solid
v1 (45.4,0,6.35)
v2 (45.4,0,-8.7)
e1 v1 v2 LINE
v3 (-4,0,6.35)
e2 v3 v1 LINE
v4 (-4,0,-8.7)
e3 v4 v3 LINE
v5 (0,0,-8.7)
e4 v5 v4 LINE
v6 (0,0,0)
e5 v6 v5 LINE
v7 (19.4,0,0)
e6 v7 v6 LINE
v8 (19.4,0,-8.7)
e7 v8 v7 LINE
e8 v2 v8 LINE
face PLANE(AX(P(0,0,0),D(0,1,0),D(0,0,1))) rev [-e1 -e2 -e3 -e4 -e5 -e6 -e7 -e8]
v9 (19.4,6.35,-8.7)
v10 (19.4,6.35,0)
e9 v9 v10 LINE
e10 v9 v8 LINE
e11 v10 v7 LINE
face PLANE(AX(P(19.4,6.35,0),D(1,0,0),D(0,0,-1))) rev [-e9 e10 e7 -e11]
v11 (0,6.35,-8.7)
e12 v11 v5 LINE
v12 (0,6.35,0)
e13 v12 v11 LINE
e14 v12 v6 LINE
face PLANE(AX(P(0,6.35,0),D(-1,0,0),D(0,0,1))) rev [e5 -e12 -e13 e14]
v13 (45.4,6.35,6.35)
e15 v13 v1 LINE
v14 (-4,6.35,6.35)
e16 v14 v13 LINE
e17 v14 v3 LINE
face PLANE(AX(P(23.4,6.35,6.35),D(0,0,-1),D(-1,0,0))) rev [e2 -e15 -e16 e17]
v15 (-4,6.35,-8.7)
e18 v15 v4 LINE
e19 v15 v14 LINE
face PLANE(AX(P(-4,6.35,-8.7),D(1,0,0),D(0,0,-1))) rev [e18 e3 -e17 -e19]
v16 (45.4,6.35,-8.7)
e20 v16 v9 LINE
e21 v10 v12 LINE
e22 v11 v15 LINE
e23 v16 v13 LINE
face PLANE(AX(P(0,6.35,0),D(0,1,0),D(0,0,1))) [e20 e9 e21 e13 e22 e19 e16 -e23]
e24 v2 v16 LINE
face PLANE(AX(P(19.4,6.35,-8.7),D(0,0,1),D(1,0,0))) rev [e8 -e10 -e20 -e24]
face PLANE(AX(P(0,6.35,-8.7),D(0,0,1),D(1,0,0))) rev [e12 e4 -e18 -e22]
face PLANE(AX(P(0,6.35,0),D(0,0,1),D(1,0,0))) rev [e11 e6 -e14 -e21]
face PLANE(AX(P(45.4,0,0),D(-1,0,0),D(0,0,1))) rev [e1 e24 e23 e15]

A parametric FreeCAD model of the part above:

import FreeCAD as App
import Part
import Sketcher

V = App.Vector
Q = App.Units.Quantity


def add_polygon(sketch, points):
    """Adds a closed chain of lines whose ends are joined by coincident constraints."""
    first, n = sketch.GeometryCount, len(points)
    for a, b in zip(points, points[1:] + points[:1]):
        sketch.addGeometry(Part.LineSegment(App.Vector(*a, 0), App.Vector(*b, 0)), False)
    for i in range(n):
        sketch.addConstraint(Sketcher.Constraint("Coincident", first + i, 2, first + (i + 1) % n, 1))

doc = App.newDocument("Part")
body = doc.addObject("PartDesign::Body", "Body")

# Sketch on XZ plane
sketch1 = doc.addObject("Sketcher::SketchObject", "Sketch")
body.addObject(sketch1)
sketch1.AttachmentSupport = (doc.XZ_Plane, [""])
sketch1.MapMode = "FlatFace"
add_polygon(sketch1, [(19.4, 0), (0, 0), (0, -8.7), (-4, -8.7), (-4, 6.3), (23.4, 6.3), (23.4, -8.7), (19.4, -8.7)])  # lines 0-7
sketch1.addConstraint(Sketcher.Constraint("Horizontal", 0))
sketch1.addConstraint(Sketcher.Constraint("Vertical", 1))
sketch1.addConstraint(Sketcher.Constraint("Horizontal", 2))
sketch1.addConstraint(Sketcher.Constraint("Vertical", 3))
sketch1.addConstraint(Sketcher.Constraint("Horizontal", 4))
sketch1.addConstraint(Sketcher.Constraint("Vertical", 5))
sketch1.addConstraint(Sketcher.Constraint("Horizontal", 6))
sketch1.addConstraint(Sketcher.Constraint("Vertical", 7))
sketch1.addConstraint(Sketcher.Constraint("Coincident", 0, 2, -1, 1))
sketch1.addConstraint(Sketcher.Constraint("Horizontal", 2, 2, 5, 2))
sketch1.addConstraint(Sketcher.Constraint("Equal", 2, 6))
sketch1.addConstraint(Sketcher.Constraint("DistanceX", 2, 2, 2, 1, Q("4 mm")))
sketch1.addConstraint(Sketcher.Constraint("DistanceX", 0, 2, 0, 1, Q("19.4 mm")))
sketch1.addConstraint(Sketcher.Constraint("DistanceY", 1, 2, 1, 1, Q("8.7 mm")))
sketch1.addConstraint(Sketcher.Constraint("DistanceY", 3, 1, 3, 2, Q("15.05 mm")))
pad1 = doc.addObject("PartDesign::Pad", "Pad")
body.addObject(pad1)
pad1.Profile = sketch1
pad1.Length = 6.35
pad1.Reversed = True

# Sketch on YZ plane
sketch2 = doc.addObject("Sketcher::SketchObject", "Sketch001")
body.addObject(sketch2)
sketch2.AttachmentSupport = (doc.YZ_Plane, [""])
sketch2.MapMode = "FlatFace"
sketch2.AttachmentOffset = App.Placement(V(0, 0, 23.4), App.Rotation())
add_polygon(sketch2, [(6, 6), (0, 6), (0, -9), (6, -9)])  # lines 0-3
sketch2.addConstraint(Sketcher.Constraint("Horizontal", 0))
sketch2.addConstraint(Sketcher.Constraint("Vertical", 1))
sketch2.addConstraint(Sketcher.Constraint("Horizontal", 2))
sketch2.addConstraint(Sketcher.Constraint("Vertical", 3))
sketch2.addConstraint(Sketcher.Constraint("PointOnObject", 0, 2, -2))
sketch2.addConstraint(Sketcher.Constraint("DistanceX", 0, 2, 0, 1, Q("6.35 mm")))
sketch2.addConstraint(Sketcher.Constraint("DistanceY", 1, 2, 1, 1, Q("15.05 mm")))
sketch2.addConstraint(Sketcher.Constraint("DistanceY", 1, 2, -1, 1, Q("8.7 mm")))
pad2 = doc.addObject("PartDesign::Pad", "Pad001")
body.addObject(pad2)
pad2.Profile = sketch2
pad2.Length = 22

doc.recompute()
